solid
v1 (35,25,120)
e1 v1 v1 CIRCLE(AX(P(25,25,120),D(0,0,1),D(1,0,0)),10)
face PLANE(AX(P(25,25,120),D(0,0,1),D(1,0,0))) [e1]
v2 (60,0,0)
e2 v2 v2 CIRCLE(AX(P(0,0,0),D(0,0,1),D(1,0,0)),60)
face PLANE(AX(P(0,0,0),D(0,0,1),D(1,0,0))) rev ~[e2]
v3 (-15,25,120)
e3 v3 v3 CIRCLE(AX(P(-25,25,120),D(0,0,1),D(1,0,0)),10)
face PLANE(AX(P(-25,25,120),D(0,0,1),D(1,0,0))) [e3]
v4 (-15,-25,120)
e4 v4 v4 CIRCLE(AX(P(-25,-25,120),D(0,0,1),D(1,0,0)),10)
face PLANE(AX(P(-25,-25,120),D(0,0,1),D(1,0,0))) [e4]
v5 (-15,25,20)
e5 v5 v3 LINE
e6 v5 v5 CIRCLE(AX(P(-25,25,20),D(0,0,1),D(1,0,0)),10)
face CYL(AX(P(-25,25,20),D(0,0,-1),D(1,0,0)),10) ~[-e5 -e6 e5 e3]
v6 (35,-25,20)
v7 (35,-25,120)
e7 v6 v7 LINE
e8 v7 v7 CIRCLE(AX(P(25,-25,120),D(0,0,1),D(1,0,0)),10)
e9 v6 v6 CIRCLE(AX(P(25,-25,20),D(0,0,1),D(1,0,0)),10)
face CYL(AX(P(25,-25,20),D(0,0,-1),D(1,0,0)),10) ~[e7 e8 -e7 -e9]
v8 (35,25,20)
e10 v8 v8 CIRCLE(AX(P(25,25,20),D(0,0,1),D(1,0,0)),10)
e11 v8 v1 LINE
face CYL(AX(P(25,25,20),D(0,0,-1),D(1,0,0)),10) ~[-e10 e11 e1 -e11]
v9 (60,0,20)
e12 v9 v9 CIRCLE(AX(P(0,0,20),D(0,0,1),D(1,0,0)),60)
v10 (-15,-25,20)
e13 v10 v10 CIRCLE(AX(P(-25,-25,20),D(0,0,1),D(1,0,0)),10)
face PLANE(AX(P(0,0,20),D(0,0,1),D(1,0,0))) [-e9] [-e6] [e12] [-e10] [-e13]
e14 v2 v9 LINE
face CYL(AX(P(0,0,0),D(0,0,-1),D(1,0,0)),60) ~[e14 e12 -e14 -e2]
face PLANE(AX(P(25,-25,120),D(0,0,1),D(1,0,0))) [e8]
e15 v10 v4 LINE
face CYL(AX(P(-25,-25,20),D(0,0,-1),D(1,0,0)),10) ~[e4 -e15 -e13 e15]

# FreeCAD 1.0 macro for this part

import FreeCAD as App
import Part
import Sketcher
from FreeCAD import Vector
Q = App.Units.Quantity

doc = App.newDocument("Part")
body = doc.addObject("PartDesign::Body", "Body")

# Sketch on XY plane
sketch1 = body.newObject("Sketcher::SketchObject", "Sketch")
sketch1.AttachmentSupport = (doc.getObject("XY_Plane"), [""])
sketch1.MapMode = "FlatFace"
sketch1.addGeometry(Part.Circle(Vector(0, 0, 0), Vector(0, 0, 1), 60), False)
sketch1.addConstraint([
    Sketcher.Constraint("Coincident", 0, 3, -1, 1),
    Sketcher.Constraint("Diameter", 0, Q("120 mm")),
])
pad1 = body.newObject("PartDesign::Pad", "Pad")
pad1.Profile = sketch1
pad1.Length = 20

# Sketch on XY plane
sketch2 = body.newObject("Sketcher::SketchObject", "Sketch001")
sketch2.AttachmentSupport = (doc.getObject("XY_Plane"), [""])
sketch2.MapMode = "FlatFace"
sketch2.AttachmentOffset = App.Placement(Vector(0, 0, 20), App.Rotation())
sketch2.addGeometry([
    Part.Circle(Vector(-25, 25, 0), Vector(0, 0, 1), 10),
    Part.Circle(Vector(25, 25, 0), Vector(0, 0, 1), 10),
    Part.Circle(Vector(-25, -25, 0), Vector(0, 0, 1), 10),
    Part.Circle(Vector(25, -25, 0), Vector(0, 0, 1), 10),
], False)
sketch2.addConstraint([
    Sketcher.Constraint("Equal", 0, 1),
    Sketcher.Constraint("Equal", 1, 2),
    Sketcher.Constraint("Equal", 2, 3),
    Sketcher.Constraint("Symmetric", 1, 3, 2, 3, -1, 1),
    Sketcher.Constraint("Symmetric", 0, 3, 3, 3, -1, 1),
    Sketcher.Constraint("Symmetric", 0, 3, 1, 3, -2),
    Sketcher.Constraint("Diameter", 0, Q("20 mm")),
    Sketcher.Constraint("DistanceX", 0, 3, -1, 1, Q("25 mm")),
    Sketcher.Constraint("DistanceY", -1, 1, 0, 3, Q("25 mm")),
])
pad2 = body.newObject("PartDesign::Pad", "Pad001")
pad2.Profile = sketch2
pad2.Length = 100

doc.recompute()
